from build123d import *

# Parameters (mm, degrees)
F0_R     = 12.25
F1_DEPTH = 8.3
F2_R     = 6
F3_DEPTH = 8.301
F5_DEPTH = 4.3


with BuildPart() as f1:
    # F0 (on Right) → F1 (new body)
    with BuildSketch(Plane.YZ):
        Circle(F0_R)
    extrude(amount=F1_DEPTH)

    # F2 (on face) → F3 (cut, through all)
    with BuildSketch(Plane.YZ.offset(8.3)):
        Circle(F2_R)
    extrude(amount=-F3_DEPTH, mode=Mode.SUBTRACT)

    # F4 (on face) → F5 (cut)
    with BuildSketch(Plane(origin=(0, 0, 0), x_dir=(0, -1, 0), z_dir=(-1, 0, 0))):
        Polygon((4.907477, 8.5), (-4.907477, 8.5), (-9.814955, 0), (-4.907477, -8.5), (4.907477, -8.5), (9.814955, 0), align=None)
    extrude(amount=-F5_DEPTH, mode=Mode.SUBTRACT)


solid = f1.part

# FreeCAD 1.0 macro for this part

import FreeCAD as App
import Part
import Sketcher
from FreeCAD import Vector
Q = App.Units.Quantity


def add_polygon(sketch, points):
    """Adds a closed chain of lines whose ends are joined by coincident constraints."""
    first, n = sketch.GeometryCount, len(points)
    for a, b in zip(points, points[1:] + points[:1]):
        sketch.addGeometry(Part.LineSegment(App.Vector(*a, 0), App.Vector(*b, 0)), False)
    for i in range(n):
        sketch.addConstraint(Sketcher.Constraint("Coincident", first + i, 2, first + (i + 1) % n, 1))

doc = App.newDocument("Part")
body = doc.addObject("PartDesign::Body", "Body")

# Sketch on YZ plane
sketch1 = body.newObject("Sketcher::SketchObject", "Sketch")
sketch1.AttachmentSupport = (doc.getObject("YZ_Plane"), [""])
sketch1.MapMode = "FlatFace"
sketch1.addGeometry(Part.Circle(Vector(0, 0, 0), Vector(0, 0, 1), 12), False)
sketch1.addConstraint([
    Sketcher.Constraint("Coincident", 0, 3, -1, 1),
    Sketcher.Constraint("Diameter", 0, 24.5),
])
pad1 = body.newObject("PartDesign::Pad", "Pad")
pad1.Profile = sketch1
pad1.Length = 8.3

# Sketch on YZ plane
sketch2 = body.newObject("Sketcher::SketchObject", "Sketch001")
sketch2.AttachmentSupport = (doc.getObject("YZ_Plane"), [""])
sketch2.MapMode = "FlatFace"
sketch2.AttachmentOffset = App.Placement(Vector(0, 0, 8.3), App.Rotation())
sketch2.addGeometry(Part.Circle(Vector(0, 0, 0), Vector(0, 0, 1), 6), False)
sketch2.addConstraint([
    Sketcher.Constraint("Coincident", 0, 3, -1, 1),
    Sketcher.Constraint("Diameter", 0, 12.0),
])
pocket1 = body.newObject("PartDesign::Pocket", "Pocket")
pocket1.Profile = sketch2
pocket1.Type = "ThroughAll"

# Sketch on YZ plane
sketch3 = body.newObject("Sketcher::SketchObject", "Sketch002")
sketch3.AttachmentSupport = (doc.getObject("YZ_Plane"), [""])
sketch3.MapMode = "FlatFace"
add_polygon(sketch3, [(-5, 8), (5, 8), (10, 0), (5, -8), (-5, -8), (-10, 0)])  # lines 0-5
sketch3.addConstraint([
    Sketcher.Constraint("Horizontal", 0),
    Sketcher.Constraint("Horizontal", 3),
    Sketcher.Constraint("Symmetric", 0, 2, 3, 2, -1, 1),
    Sketcher.Constraint("Symmetric", 1, 2, 4, 2, -1, 1),
    Sketcher.Constraint("PointOnObject", 1, 2, -1),
    Sketcher.Constraint("Parallel", 2, 5),
    Sketcher.Constraint("Vertical", 0, 2, 2, 2),
    Sketcher.Constraint("Angle", 1, Q("-59.999996 deg")),
    Sketcher.Constraint("DistanceY", 2, 2, 0, 2, 17.0),
    Sketcher.Constraint("DistanceX", 0, 1, 0, 2, 9.814954),
])
pocket2 = body.newObject("PartDesign::Pocket", "Pocket001")
pocket2.Profile = sketch3
pocket2.Length = 4.3
pocket2.Reversed = True

doc.recompute()
